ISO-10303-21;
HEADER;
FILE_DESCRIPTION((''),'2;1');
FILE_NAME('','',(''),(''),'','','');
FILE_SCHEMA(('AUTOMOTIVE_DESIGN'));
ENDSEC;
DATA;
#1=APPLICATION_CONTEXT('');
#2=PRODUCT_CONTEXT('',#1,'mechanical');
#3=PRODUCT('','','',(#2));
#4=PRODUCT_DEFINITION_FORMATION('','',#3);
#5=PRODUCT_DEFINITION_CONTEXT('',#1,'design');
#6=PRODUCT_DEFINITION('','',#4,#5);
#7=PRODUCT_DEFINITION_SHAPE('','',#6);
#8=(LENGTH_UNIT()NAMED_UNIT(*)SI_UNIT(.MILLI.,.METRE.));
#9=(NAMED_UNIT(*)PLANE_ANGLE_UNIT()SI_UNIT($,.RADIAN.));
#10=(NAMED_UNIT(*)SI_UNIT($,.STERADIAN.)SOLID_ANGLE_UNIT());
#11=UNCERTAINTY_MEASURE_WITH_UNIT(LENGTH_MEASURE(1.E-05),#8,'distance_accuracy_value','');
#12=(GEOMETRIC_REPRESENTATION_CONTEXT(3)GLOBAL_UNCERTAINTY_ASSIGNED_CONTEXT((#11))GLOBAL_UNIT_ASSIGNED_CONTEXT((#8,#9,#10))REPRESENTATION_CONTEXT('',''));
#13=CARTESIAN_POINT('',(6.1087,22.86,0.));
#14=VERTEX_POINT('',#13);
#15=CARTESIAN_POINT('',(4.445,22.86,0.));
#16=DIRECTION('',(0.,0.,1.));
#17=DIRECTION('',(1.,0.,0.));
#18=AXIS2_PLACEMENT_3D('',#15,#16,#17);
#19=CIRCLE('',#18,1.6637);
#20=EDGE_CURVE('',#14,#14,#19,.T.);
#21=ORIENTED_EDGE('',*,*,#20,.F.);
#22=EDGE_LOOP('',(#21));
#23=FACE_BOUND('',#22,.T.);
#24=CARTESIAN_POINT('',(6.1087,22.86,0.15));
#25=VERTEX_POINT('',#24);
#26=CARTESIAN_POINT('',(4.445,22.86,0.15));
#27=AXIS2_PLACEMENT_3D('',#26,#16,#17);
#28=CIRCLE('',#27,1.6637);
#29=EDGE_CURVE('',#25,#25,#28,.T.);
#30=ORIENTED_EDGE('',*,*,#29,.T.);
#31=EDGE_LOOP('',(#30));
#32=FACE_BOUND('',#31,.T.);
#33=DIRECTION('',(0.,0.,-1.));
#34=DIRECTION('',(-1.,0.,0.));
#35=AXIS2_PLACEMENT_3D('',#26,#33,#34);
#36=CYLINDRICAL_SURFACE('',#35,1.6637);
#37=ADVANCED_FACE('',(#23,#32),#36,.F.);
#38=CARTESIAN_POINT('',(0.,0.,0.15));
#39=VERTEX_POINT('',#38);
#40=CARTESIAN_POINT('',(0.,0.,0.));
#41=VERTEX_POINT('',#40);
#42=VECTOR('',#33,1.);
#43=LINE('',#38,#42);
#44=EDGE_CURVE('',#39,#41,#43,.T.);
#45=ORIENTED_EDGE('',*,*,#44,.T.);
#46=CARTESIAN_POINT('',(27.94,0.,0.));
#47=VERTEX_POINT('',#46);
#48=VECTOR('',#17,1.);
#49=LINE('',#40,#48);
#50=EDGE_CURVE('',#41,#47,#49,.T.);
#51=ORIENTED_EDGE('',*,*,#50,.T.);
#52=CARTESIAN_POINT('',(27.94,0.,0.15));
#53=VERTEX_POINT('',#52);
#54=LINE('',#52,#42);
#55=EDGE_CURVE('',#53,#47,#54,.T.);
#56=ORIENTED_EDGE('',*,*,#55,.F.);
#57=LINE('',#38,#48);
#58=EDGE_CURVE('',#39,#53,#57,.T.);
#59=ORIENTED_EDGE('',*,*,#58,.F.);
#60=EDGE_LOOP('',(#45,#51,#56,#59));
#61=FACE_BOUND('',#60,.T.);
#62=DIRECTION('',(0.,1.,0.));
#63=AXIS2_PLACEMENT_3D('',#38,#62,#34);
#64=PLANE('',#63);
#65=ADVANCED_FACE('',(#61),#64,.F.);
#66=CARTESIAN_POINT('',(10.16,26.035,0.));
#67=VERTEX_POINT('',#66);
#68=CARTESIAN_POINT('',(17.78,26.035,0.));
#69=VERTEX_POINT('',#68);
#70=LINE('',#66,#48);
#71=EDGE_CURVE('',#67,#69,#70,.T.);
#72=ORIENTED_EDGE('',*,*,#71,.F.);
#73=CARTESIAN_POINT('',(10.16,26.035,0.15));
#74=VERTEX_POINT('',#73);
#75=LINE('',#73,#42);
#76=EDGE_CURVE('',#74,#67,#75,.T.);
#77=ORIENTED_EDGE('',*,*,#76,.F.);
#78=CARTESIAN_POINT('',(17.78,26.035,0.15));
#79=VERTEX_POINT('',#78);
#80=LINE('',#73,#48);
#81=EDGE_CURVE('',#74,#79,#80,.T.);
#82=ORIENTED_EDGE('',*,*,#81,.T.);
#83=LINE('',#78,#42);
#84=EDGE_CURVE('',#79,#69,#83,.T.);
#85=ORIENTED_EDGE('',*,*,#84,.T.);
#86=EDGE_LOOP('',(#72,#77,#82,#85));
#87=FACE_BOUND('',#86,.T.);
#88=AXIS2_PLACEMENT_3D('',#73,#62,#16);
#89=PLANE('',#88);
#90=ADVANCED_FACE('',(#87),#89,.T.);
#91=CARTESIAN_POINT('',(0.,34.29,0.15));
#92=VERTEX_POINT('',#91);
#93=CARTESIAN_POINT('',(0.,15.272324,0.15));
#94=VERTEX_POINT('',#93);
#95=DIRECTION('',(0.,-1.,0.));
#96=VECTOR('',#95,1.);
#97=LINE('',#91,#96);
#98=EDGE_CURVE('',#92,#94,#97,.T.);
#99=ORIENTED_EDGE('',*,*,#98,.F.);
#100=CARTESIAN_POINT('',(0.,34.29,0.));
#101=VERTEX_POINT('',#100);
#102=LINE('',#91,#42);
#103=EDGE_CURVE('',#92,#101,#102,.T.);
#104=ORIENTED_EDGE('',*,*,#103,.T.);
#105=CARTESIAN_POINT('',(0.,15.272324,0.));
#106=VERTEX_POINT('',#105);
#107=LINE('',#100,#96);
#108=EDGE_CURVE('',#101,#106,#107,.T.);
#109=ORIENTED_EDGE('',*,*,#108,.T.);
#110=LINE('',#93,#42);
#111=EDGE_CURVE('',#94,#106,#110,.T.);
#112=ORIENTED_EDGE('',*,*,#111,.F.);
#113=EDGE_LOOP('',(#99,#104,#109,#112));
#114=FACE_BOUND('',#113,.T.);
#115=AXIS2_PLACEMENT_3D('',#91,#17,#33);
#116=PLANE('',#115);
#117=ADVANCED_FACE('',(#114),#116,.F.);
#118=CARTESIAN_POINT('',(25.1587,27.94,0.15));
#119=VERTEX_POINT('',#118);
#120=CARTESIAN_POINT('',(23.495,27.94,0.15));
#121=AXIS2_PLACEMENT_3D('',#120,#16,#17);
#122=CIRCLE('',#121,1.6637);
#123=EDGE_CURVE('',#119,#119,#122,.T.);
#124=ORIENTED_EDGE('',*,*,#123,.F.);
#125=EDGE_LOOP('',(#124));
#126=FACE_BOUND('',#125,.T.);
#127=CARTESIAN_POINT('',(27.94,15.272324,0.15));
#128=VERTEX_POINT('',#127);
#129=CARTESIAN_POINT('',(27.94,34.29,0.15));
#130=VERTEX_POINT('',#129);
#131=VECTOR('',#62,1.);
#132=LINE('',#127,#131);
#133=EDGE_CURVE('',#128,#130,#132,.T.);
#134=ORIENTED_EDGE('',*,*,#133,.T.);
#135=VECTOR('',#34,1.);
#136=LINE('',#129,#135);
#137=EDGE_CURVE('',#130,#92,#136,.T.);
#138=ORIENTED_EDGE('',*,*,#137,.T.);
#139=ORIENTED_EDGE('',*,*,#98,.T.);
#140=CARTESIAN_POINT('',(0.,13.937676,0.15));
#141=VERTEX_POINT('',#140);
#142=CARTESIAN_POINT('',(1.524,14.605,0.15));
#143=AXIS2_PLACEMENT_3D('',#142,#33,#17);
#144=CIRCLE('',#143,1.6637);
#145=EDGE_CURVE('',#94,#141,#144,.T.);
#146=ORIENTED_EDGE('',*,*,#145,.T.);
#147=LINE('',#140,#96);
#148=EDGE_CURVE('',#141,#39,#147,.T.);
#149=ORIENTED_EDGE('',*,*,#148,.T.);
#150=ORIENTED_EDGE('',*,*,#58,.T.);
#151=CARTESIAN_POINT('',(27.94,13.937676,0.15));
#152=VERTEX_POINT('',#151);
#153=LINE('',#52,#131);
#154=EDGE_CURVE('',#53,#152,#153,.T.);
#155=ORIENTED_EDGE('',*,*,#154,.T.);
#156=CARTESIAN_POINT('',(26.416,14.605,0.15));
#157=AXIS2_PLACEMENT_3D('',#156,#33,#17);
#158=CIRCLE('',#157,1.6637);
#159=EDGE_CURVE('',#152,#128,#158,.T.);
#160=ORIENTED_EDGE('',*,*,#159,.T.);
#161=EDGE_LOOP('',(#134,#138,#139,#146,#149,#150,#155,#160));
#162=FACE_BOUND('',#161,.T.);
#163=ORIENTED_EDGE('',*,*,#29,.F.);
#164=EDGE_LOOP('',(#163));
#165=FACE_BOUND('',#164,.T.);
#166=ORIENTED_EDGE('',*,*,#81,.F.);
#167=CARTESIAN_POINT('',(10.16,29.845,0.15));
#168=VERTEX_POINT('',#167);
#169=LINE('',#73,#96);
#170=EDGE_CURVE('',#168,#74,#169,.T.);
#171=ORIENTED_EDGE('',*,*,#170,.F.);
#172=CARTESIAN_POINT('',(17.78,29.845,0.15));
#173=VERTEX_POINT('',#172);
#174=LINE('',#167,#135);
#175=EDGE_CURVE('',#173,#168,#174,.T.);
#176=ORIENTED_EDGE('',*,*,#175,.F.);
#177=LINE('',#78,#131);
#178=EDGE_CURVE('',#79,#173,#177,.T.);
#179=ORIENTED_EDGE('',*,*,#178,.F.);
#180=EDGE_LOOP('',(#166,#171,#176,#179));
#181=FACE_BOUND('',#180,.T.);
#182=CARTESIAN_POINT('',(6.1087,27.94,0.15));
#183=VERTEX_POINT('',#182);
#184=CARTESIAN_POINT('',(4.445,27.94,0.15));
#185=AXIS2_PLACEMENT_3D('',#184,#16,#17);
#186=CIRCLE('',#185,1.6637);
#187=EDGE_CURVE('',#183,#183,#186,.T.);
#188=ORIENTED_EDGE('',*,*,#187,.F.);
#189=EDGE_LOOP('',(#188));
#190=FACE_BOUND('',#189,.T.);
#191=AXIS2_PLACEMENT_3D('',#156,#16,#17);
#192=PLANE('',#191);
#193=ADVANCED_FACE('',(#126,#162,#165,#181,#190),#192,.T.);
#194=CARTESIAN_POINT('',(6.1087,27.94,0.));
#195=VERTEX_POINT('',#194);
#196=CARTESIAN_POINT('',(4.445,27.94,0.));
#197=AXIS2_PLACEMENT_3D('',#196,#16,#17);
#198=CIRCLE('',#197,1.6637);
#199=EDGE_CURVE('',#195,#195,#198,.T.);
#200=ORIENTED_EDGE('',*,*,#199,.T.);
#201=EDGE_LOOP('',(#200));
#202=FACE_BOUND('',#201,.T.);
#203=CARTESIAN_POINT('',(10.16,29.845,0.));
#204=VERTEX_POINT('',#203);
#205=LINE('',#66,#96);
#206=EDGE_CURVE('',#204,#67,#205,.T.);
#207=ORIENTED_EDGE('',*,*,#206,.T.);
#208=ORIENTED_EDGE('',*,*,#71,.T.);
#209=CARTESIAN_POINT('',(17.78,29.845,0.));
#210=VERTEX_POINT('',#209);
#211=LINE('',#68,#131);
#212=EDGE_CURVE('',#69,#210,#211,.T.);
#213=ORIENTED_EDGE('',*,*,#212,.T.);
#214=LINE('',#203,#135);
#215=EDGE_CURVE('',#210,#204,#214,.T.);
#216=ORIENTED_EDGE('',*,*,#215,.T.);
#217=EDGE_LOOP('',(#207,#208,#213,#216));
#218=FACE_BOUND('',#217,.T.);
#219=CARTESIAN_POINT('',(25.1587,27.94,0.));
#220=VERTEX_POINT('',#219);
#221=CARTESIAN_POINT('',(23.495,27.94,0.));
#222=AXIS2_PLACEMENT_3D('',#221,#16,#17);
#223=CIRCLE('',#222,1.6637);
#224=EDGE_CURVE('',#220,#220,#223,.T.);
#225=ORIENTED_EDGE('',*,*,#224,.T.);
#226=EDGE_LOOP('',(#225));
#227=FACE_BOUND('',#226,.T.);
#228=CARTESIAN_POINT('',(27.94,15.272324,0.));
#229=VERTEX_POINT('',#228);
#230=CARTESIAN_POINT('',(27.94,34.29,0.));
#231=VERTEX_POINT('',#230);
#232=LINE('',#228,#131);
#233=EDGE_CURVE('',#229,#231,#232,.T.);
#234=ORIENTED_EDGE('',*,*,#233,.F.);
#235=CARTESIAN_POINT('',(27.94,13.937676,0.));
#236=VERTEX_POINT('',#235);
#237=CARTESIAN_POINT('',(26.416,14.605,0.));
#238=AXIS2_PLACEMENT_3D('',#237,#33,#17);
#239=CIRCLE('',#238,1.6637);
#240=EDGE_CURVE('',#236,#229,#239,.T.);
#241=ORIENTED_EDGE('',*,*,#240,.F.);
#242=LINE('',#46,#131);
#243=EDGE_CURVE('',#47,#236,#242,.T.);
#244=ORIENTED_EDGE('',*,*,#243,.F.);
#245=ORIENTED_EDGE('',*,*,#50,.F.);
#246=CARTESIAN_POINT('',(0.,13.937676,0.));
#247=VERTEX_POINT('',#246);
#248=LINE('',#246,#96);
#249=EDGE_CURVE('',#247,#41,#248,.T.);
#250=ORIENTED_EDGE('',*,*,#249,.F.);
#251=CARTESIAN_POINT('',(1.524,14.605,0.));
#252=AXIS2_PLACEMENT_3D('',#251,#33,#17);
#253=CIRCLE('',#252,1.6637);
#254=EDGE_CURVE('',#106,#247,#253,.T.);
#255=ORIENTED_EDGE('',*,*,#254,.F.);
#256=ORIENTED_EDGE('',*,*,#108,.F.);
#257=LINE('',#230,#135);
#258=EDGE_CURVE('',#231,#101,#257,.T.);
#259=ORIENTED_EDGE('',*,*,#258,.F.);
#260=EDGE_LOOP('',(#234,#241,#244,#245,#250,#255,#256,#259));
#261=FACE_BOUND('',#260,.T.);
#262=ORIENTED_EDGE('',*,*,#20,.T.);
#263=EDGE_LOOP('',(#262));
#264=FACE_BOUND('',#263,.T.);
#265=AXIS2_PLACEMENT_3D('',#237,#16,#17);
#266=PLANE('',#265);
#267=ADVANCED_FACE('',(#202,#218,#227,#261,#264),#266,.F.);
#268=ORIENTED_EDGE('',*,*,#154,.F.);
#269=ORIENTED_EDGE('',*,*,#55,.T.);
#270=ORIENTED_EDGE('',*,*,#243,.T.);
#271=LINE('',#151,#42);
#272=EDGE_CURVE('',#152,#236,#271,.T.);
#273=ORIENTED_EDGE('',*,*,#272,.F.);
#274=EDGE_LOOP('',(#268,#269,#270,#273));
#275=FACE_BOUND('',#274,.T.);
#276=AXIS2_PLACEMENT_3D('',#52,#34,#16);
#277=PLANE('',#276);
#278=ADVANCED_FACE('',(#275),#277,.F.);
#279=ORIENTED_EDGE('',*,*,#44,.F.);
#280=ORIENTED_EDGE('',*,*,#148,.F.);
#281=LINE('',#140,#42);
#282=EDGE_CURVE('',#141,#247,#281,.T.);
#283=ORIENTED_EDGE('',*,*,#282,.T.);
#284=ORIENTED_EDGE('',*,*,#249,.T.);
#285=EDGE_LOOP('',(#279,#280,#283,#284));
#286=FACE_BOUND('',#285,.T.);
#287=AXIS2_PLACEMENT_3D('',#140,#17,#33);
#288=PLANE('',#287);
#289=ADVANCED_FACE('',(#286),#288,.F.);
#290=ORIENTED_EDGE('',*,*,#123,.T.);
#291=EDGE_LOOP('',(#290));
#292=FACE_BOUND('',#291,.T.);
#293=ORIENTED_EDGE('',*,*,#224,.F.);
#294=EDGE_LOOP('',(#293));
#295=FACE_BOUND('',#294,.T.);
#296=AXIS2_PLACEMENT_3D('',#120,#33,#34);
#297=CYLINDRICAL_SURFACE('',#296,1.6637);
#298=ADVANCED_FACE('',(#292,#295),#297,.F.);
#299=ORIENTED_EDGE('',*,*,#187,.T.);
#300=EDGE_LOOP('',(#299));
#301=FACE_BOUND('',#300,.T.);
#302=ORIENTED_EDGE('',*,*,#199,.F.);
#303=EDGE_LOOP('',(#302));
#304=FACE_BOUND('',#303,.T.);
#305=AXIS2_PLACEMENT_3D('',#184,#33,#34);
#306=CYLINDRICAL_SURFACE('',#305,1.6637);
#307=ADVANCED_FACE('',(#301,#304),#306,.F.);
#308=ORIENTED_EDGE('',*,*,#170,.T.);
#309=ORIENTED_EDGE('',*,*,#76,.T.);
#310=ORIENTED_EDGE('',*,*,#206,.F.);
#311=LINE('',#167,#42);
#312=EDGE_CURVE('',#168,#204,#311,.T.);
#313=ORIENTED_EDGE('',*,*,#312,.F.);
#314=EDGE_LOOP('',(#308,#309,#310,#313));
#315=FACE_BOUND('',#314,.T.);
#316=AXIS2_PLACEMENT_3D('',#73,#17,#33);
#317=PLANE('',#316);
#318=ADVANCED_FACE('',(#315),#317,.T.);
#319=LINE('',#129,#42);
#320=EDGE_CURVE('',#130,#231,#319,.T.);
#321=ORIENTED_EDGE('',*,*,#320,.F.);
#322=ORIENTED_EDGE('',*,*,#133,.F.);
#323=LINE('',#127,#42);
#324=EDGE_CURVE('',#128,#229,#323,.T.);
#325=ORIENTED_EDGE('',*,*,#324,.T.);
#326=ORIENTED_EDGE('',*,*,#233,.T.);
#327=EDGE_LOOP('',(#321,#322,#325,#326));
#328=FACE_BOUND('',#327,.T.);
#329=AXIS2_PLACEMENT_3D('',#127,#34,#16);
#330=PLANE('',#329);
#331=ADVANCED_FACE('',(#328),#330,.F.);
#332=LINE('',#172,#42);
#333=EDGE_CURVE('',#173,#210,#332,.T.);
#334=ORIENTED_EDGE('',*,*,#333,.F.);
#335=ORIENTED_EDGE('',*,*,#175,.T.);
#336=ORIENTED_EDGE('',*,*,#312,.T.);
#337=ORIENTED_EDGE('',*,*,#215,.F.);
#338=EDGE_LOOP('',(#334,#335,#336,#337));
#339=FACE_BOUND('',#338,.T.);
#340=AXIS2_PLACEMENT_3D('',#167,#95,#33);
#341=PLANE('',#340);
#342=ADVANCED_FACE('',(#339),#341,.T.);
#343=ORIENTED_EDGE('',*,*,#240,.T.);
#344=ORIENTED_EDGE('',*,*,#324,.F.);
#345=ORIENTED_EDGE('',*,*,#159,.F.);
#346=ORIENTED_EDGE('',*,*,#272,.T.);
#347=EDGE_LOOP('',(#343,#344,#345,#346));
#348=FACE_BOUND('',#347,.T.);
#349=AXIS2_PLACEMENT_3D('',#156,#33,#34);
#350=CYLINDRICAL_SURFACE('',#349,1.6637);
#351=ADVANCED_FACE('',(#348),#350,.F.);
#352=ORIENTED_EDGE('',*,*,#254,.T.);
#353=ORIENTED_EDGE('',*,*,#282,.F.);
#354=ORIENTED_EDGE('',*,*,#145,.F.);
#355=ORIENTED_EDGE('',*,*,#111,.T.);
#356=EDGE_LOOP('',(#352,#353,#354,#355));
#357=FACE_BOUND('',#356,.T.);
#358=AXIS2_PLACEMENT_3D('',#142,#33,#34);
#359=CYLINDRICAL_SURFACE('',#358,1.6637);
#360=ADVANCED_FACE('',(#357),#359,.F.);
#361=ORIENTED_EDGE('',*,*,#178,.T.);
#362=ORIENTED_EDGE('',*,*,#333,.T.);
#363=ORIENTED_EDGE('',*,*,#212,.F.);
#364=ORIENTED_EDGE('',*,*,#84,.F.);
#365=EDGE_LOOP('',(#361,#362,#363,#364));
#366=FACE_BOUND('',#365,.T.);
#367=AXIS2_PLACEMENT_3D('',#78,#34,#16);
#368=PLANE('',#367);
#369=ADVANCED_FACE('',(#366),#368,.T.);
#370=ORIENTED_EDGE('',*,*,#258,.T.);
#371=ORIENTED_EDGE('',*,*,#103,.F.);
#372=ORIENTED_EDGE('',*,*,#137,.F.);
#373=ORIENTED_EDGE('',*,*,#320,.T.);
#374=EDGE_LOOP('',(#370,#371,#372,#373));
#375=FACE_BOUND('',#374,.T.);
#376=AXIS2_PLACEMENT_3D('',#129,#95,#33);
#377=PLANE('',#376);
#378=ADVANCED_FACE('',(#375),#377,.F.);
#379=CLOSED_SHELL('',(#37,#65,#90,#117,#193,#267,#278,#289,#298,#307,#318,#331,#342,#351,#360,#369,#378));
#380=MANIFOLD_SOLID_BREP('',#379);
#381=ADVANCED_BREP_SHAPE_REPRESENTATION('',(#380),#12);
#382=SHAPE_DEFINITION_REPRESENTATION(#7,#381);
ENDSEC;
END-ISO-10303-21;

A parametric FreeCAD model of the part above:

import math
import FreeCAD as App
import Part
import Sketcher
Q = App.Units.Quantity


def add_polygon(sketch, points):
    """Adds a closed chain of lines whose ends are joined by coincident constraints."""
    first, n = sketch.GeometryCount, len(points)
    for a, b in zip(points, points[1:] + points[:1]):
        sketch.addGeometry(Part.LineSegment(App.Vector(*a, 0), App.Vector(*b, 0)), False)
    for i in range(n):
        sketch.addConstraint(Sketcher.Constraint("Coincident", first + i, 2, first + (i + 1) % n, 1))

doc = App.newDocument("Part")
body = doc.addObject("PartDesign::Body", "Body")

# Sketch on XY plane
sketch1 = body.newObject("Sketcher::SketchObject", "Sketch")
sketch1.AttachmentSupport = (doc.getObject("XY_Plane"), [""])
sketch1.MapMode = "FlatFace"
sketch1.addGeometry(Part.LineSegment(App.Vector(0, 0, 0), App.Vector(27.94, 0, 0)), False)  # 0
sketch1.addGeometry(Part.LineSegment(App.Vector(27.94, 0, 0), App.Vector(27.94, 13.937676, 0)), False)  # 1
sketch1.addGeometry(Part.ArcOfCircle(Part.Circle(App.Vector(26.416, 14.605, 0), App.Vector(0, 0, 1), 1.6637), math.radians(23.647497), math.radians(336.352503)), False)  # 2
sketch1.addGeometry(Part.LineSegment(App.Vector(27.94, 15.272324, 0), App.Vector(27.94, 34.29, 0)), False)  # 3
sketch1.addGeometry(Part.LineSegment(App.Vector(27.94, 34.29, 0), App.Vector(0, 34.29, 0)), False)  # 4
sketch1.addGeometry(Part.LineSegment(App.Vector(0, 34.29, 0), App.Vector(0, 15.272324, 0)), False)  # 5
sketch1.addGeometry(Part.ArcOfCircle(Part.Circle(App.Vector(1.524, 14.605, 0), App.Vector(0, 0, 1), 1.6637), math.radians(-156.352503), math.radians(156.352503)), False)  # 6
sketch1.addGeometry(Part.LineSegment(App.Vector(0, 13.937676, 0), App.Vector(0, 0, 0)), False)  # 7
sketch1.addGeometry(Part.Circle(App.Vector(4.445, 22.86, 0), App.Vector(0, 0, 1), 1.6637), False)  # 8
sketch1.addGeometry(Part.Circle(App.Vector(4.445, 27.94, 0), App.Vector(0, 0, 1), 1.6637), False)  # 9
add_polygon(sketch1, [(17.78, 26.035), (10.16, 26.035), (10.16, 29.845), (17.78, 29.845)])  # lines 10-13
sketch1.addGeometry(Part.Circle(App.Vector(23.495, 27.94, 0), App.Vector(0, 0, 1), 1.6637), False)  # 14
sketch1.addConstraint(Sketcher.Constraint("Coincident", 0, 2, 1, 1))
sketch1.addConstraint(Sketcher.Constraint("Coincident", 1, 2, 2, 2))
sketch1.addConstraint(Sketcher.Constraint("Coincident", 2, 1, 3, 1))
sketch1.addConstraint(Sketcher.Constraint("Coincident", 3, 2, 4, 1))
sketch1.addConstraint(Sketcher.Constraint("Coincident", 4, 2, 5, 1))
sketch1.addConstraint(Sketcher.Constraint("Coincident", 5, 2, 6, 2))
sketch1.addConstraint(Sketcher.Constraint("Coincident", 6, 1, 7, 1))
sketch1.addConstraint(Sketcher.Constraint("Coincident", 7, 2, 0, 1))
sketch1.addConstraint(Sketcher.Constraint("Horizontal", 0))
sketch1.addConstraint(Sketcher.Constraint("Vertical", 1))
sketch1.addConstraint(Sketcher.Constraint("Vertical", 3))
sketch1.addConstraint(Sketcher.Constraint("Horizontal", 4))
sketch1.addConstraint(Sketcher.Constraint("Vertical", 5))
sketch1.addConstraint(Sketcher.Constraint("Vertical", 7))
sketch1.addConstraint(Sketcher.Constraint("Horizontal", 10))
sketch1.addConstraint(Sketcher.Constraint("Vertical", 11))
sketch1.addConstraint(Sketcher.Constraint("Horizontal", 12))
sketch1.addConstraint(Sketcher.Constraint("Vertical", 13))
sketch1.addConstraint(Sketcher.Constraint("Coincident", 7, 2, -1, 1))
sketch1.addConstraint(Sketcher.Constraint("Equal", 2, 6))
sketch1.addConstraint(Sketcher.Constraint("Equal", 6, 8))
sketch1.addConstraint(Sketcher.Constraint("Equal", 8, 9))
sketch1.addConstraint(Sketcher.Constraint("Equal", 9, 14))
sketch1.addConstraint(Sketcher.Constraint("PointOnObject", 4, 2, -2))
sketch1.addConstraint(Sketcher.Constraint("Horizontal", 2, 3, 6, 3))
sketch1.addConstraint(Sketcher.Constraint("Horizontal", 9, 3, 14, 3))
sketch1.addConstraint(Sketcher.Constraint("Horizontal", 2, 1, 5, 2))
sketch1.addConstraint(Sketcher.Constraint("Horizontal", 1, 2, 6, 1))
sketch1.addConstraint(Sketcher.Constraint("Vertical", 8, 3, 9, 3))
sketch1.addConstraint(Sketcher.Constraint("Diameter", 8, Q("0.131 in")))
sketch1.addConstraint(Sketcher.Constraint("DistanceX", 0, 1, 0, 2, Q("1.1 in")))
sketch1.addConstraint(Sketcher.Constraint("DistanceX", 10, 2, 10, 1, Q("0.3 in")))
sketch1.addConstraint(Sketcher.Constraint("DistanceY", 11, 1, 11, 2, Q("0.15 in")))
sketch1.addConstraint(Sketcher.Constraint("DistanceY", -1, 1, 8, 3, Q("0.9 in")))
sketch1.addConstraint(Sketcher.Constraint("DistanceY", -1, 1, 9, 3, Q("1.1 in")))
sketch1.addConstraint(Sketcher.Constraint("DistanceX", -1, 1, 10, 2, Q("0.4 in")))
sketch1.addConstraint(Sketcher.Constraint("DistanceX", -1, 1, 2, 3, Q("1.04 in")))
sketch1.addConstraint(Sketcher.Constraint("DistanceY", -1, 1, 3, 2, Q("1.35 in")))
sketch1.addConstraint(Sketcher.Constraint("DistanceX", 9, 3, 14, 3, Q("0.75 in")))
sketch1.addConstraint(Sketcher.Constraint("DistanceY", 6, 3, 10, 2, Q("0.45 in")))
sketch1.addConstraint(Sketcher.Constraint("DistanceY", -1, 1, 2, 3, Q("0.575 in")))
sketch1.addConstraint(Sketcher.Constraint("DistanceX", -1, 1, 8, 3, Q("0.175 in")))
pad1 = body.newObject("PartDesign::Pad", "Pad")
pad1.Profile = sketch1
pad1.Length = 0.15

doc.recompute()
